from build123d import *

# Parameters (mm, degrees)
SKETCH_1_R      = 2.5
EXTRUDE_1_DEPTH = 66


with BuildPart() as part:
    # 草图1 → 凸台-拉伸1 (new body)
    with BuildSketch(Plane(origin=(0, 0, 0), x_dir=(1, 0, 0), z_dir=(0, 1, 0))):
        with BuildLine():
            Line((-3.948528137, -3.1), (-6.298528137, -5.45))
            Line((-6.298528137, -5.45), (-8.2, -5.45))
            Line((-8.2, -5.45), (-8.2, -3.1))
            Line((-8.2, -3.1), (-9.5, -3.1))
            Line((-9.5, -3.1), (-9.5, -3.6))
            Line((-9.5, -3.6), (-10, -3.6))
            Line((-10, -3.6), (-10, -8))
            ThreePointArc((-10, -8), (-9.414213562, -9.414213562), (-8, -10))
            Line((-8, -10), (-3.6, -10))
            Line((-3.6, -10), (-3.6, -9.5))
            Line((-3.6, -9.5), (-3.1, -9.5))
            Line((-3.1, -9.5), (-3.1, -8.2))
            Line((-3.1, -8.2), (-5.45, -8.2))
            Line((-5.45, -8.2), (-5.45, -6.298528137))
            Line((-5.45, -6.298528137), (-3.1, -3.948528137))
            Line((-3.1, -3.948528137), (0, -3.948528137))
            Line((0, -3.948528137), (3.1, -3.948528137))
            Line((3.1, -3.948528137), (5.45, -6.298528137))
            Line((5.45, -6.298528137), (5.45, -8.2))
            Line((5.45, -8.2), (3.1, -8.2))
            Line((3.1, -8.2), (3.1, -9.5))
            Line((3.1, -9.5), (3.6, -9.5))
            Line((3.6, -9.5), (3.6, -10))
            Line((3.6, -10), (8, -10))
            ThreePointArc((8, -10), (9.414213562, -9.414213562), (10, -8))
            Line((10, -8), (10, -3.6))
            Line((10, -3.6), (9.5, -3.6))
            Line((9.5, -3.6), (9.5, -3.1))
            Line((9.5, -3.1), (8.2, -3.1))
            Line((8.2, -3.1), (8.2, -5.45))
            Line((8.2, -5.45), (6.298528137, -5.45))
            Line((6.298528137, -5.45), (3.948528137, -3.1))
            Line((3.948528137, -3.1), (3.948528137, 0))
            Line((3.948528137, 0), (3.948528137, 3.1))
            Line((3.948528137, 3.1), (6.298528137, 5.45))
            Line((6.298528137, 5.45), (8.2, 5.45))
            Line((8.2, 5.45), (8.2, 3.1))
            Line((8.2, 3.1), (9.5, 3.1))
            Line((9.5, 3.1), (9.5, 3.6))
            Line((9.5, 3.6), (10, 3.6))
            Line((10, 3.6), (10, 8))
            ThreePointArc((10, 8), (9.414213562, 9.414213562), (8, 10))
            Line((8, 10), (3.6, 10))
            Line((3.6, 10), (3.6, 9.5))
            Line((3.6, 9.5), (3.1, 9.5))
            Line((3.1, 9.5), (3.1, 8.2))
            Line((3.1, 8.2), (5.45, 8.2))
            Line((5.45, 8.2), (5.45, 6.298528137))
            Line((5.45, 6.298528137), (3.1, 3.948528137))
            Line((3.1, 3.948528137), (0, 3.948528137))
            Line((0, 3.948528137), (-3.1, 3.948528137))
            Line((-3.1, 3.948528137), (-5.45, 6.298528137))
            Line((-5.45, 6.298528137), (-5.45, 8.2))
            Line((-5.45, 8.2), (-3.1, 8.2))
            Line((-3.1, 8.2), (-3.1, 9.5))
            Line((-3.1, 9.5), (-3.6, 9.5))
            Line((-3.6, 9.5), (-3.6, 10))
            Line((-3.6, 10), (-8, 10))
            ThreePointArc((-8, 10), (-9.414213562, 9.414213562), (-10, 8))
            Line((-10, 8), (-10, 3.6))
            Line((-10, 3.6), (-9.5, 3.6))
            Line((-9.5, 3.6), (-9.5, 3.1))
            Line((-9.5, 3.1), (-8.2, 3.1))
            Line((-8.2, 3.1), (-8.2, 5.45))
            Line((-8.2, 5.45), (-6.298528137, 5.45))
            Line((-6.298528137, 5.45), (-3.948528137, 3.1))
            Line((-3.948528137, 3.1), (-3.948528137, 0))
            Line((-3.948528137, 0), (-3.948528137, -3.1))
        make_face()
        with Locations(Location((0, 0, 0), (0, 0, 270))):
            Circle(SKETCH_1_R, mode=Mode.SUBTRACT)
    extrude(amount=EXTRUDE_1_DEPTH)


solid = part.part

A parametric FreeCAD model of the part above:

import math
import FreeCAD as App
import Part
import Sketcher

doc = App.newDocument("Part")
body = doc.addObject("PartDesign::Body", "Body")

sketch1 = doc.addObject("Sketcher::SketchObject", "Sketch")
body.addObject(sketch1)
sketch1.AttachmentSupport = (doc.XZ_Plane, [""])
sketch1.MapMode = "FlatFace"
sketch1.addGeometry(Part.LineSegment(App.Vector(-3.948528, 3.1, 0), App.Vector(-6.298528, 5.45, 0)), False)
sketch1.addGeometry(Part.LineSegment(App.Vector(-6.298528, 5.45, 0), App.Vector(-8.2, 5.45, 0)), False)
sketch1.addGeometry(Part.LineSegment(App.Vector(-8.2, 5.45, 0), App.Vector(-8.2, 3.1, 0)), False)
sketch1.addGeometry(Part.LineSegment(App.Vector(-8.2, 3.1, 0), App.Vector(-9.5, 3.1, 0)), False)
sketch1.addGeometry(Part.LineSegment(App.Vector(-9.5, 3.1, 0), App.Vector(-9.5, 3.6, 0)), False)
sketch1.addGeometry(Part.LineSegment(App.Vector(-9.5, 3.6, 0), App.Vector(-10, 3.6, 0)), False)
sketch1.addGeometry(Part.LineSegment(App.Vector(-10, 3.6, 0), App.Vector(-10, 8, 0)), False)
sketch1.addGeometry(Part.ArcOfCircle(Part.Circle(App.Vector(-8, 8, 0), App.Vector(0, 0, 1), 2), math.radians(90), math.radians(180)), False)
sketch1.addGeometry(Part.LineSegment(App.Vector(-8, 10, 0), App.Vector(-3.6, 10, 0)), False)
sketch1.addGeometry(Part.LineSegment(App.Vector(-3.6, 10, 0), App.Vector(-3.6, 9.5, 0)), False)
sketch1.addGeometry(Part.LineSegment(App.Vector(-3.6, 9.5, 0), App.Vector(-3.1, 9.5, 0)), False)
sketch1.addGeometry(Part.LineSegment(App.Vector(-3.1, 9.5, 0), App.Vector(-3.1, 8.2, 0)), False)
sketch1.addGeometry(Part.LineSegment(App.Vector(-3.1, 8.2, 0), App.Vector(-5.45, 8.2, 0)), False)
sketch1.addGeometry(Part.LineSegment(App.Vector(-5.45, 8.2, 0), App.Vector(-5.45, 6.298528, 0)), False)
sketch1.addGeometry(Part.LineSegment(App.Vector(-5.45, 6.298528, 0), App.Vector(-3.1, 3.948528, 0)), False)
sketch1.addGeometry(Part.LineSegment(App.Vector(-3.1, 3.948528, 0), App.Vector(3.1, 3.948528, 0)), False)
sketch1.addGeometry(Part.LineSegment(App.Vector(3.1, 3.948528, 0), App.Vector(5.45, 6.298528, 0)), False)
sketch1.addGeometry(Part.LineSegment(App.Vector(5.45, 6.298528, 0), App.Vector(5.45, 8.2, 0)), False)
sketch1.addGeometry(Part.LineSegment(App.Vector(5.45, 8.2, 0), App.Vector(3.1, 8.2, 0)), False)
sketch1.addGeometry(Part.LineSegment(App.Vector(3.1, 8.2, 0), App.Vector(3.1, 9.5, 0)), False)
sketch1.addGeometry(Part.LineSegment(App.Vector(3.1, 9.5, 0), App.Vector(3.6, 9.5, 0)), False)
sketch1.addGeometry(Part.LineSegment(App.Vector(3.6, 9.5, 0), App.Vector(3.6, 10, 0)), False)
sketch1.addGeometry(Part.LineSegment(App.Vector(3.6, 10, 0), App.Vector(8, 10, 0)), False)
sketch1.addGeometry(Part.ArcOfCircle(Part.Circle(App.Vector(8, 8, 0), App.Vector(0, 0, 1), 2), math.radians(0), math.radians(90)), False)
sketch1.addGeometry(Part.LineSegment(App.Vector(10, 8, 0), App.Vector(10, 3.6, 0)), False)
sketch1.addGeometry(Part.LineSegment(App.Vector(10, 3.6, 0), App.Vector(9.5, 3.6, 0)), False)
sketch1.addGeometry(Part.LineSegment(App.Vector(9.5, 3.6, 0), App.Vector(9.5, 3.1, 0)), False)
sketch1.addGeometry(Part.LineSegment(App.Vector(9.5, 3.1, 0), App.Vector(8.2, 3.1, 0)), False)
sketch1.addGeometry(Part.LineSegment(App.Vector(8.2, 3.1, 0), App.Vector(8.2, 5.45, 0)), False)
sketch1.addGeometry(Part.LineSegment(App.Vector(8.2, 5.45, 0), App.Vector(6.298528, 5.45, 0)), False)
sketch1.addGeometry(Part.LineSegment(App.Vector(6.298528, 5.45, 0), App.Vector(3.948528, 3.1, 0)), False)
sketch1.addGeometry(Part.LineSegment(App.Vector(3.948528, 3.1, 0), App.Vector(3.948528, -3.1, 0)), False)
sketch1.addGeometry(Part.LineSegment(App.Vector(3.948528, -3.1, 0), App.Vector(6.298528, -5.45, 0)), False)
sketch1.addGeometry(Part.LineSegment(App.Vector(6.298528, -5.45, 0), App.Vector(8.2, -5.45, 0)), False)
sketch1.addGeometry(Part.LineSegment(App.Vector(8.2, -5.45, 0), App.Vector(8.2, -3.1, 0)), False)
sketch1.addGeometry(Part.LineSegment(App.Vector(8.2, -3.1, 0), App.Vector(9.5, -3.1, 0)), False)
sketch1.addGeometry(Part.LineSegment(App.Vector(9.5, -3.1, 0), App.Vector(9.5, -3.6, 0)), False)
sketch1.addGeometry(Part.LineSegment(App.Vector(9.5, -3.6, 0), App.Vector(10, -3.6, 0)), False)
sketch1.addGeometry(Part.LineSegment(App.Vector(10, -3.6, 0), App.Vector(10, -8, 0)), False)
sketch1.addGeometry(Part.ArcOfCircle(Part.Circle(App.Vector(8, -8, 0), App.Vector(0, 0, 1), 2), math.radians(-90), math.radians(0)), False)
sketch1.addGeometry(Part.LineSegment(App.Vector(8, -10, 0), App.Vector(3.6, -10, 0)), False)
sketch1.addGeometry(Part.LineSegment(App.Vector(3.6, -10, 0), App.Vector(3.6, -9.5, 0)), False)
sketch1.addGeometry(Part.LineSegment(App.Vector(3.6, -9.5, 0), App.Vector(3.1, -9.5, 0)), False)
sketch1.addGeometry(Part.LineSegment(App.Vector(3.1, -9.5, 0), App.Vector(3.1, -8.2, 0)), False)
sketch1.addGeometry(Part.LineSegment(App.Vector(3.1, -8.2, 0), App.Vector(5.45, -8.2, 0)), False)
sketch1.addGeometry(Part.LineSegment(App.Vector(5.45, -8.2, 0), App.Vector(5.45, -6.298528, 0)), False)
sketch1.addGeometry(Part.LineSegment(App.Vector(5.45, -6.298528, 0), App.Vector(3.1, -3.948528, 0)), False)
sketch1.addGeometry(Part.LineSegment(App.Vector(3.1, -3.948528, 0), App.Vector(-3.1, -3.948528, 0)), False)
sketch1.addGeometry(Part.LineSegment(App.Vector(-3.1, -3.948528, 0), App.Vector(-5.45, -6.298528, 0)), False)
sketch1.addGeometry(Part.LineSegment(App.Vector(-5.45, -6.298528, 0), App.Vector(-5.45, -8.2, 0)), False)
sketch1.addGeometry(Part.LineSegment(App.Vector(-5.45, -8.2, 0), App.Vector(-3.1, -8.2, 0)), False)
sketch1.addGeometry(Part.LineSegment(App.Vector(-3.1, -8.2, 0), App.Vector(-3.1, -9.5, 0)), False)
sketch1.addGeometry(Part.LineSegment(App.Vector(-3.1, -9.5, 0), App.Vector(-3.6, -9.5, 0)), False)
sketch1.addGeometry(Part.LineSegment(App.Vector(-3.6, -9.5, 0), App.Vector(-3.6, -10, 0)), False)
sketch1.addGeometry(Part.LineSegment(App.Vector(-3.6, -10, 0), App.Vector(-8, -10, 0)), False)
sketch1.addGeometry(Part.ArcOfCircle(Part.Circle(App.Vector(-8, -8, 0), App.Vector(0, 0, 1), 2), math.radians(-180), math.radians(-90)), False)
sketch1.addGeometry(Part.LineSegment(App.Vector(-10, -8, 0), App.Vector(-10, -3.6, 0)), False)
sketch1.addGeometry(Part.LineSegment(App.Vector(-10, -3.6, 0), App.Vector(-9.5, -3.6, 0)), False)
sketch1.addGeometry(Part.LineSegment(App.Vector(-9.5, -3.6, 0), App.Vector(-9.5, -3.1, 0)), False)
sketch1.addGeometry(Part.LineSegment(App.Vector(-9.5, -3.1, 0), App.Vector(-8.2, -3.1, 0)), False)
sketch1.addGeometry(Part.LineSegment(App.Vector(-8.2, -3.1, 0), App.Vector(-8.2, -5.45, 0)), False)
sketch1.addGeometry(Part.LineSegment(App.Vector(-8.2, -5.45, 0), App.Vector(-6.298528, -5.45, 0)), False)
sketch1.addGeometry(Part.LineSegment(App.Vector(-6.298528, -5.45, 0), App.Vector(-3.948528, -3.1, 0)), False)
sketch1.addGeometry(Part.LineSegment(App.Vector(-3.948528, -3.1, 0), App.Vector(-3.948528, 3.1, 0)), False)
sketch1.addGeometry(Part.Circle(App.Vector(0, 0, 0), App.Vector(0, 0, 1), 2.5), False)
sketch1.addConstraint(Sketcher.Constraint("Coincident", 0, 2, 1, 1))
sketch1.addConstraint(Sketcher.Constraint("Coincident", 1, 2, 2, 1))
sketch1.addConstraint(Sketcher.Constraint("Coincident", 2, 2, 3, 1))
sketch1.addConstraint(Sketcher.Constraint("Coincident", 3, 2, 4, 1))
sketch1.addConstraint(Sketcher.Constraint("Coincident", 4, 2, 5, 1))
sketch1.addConstraint(Sketcher.Constraint("Coincident", 5, 2, 6, 1))
sketch1.addConstraint(Sketcher.Constraint("Tangent", 6, 2, 7, 2))
sketch1.addConstraint(Sketcher.Constraint("Tangent", 7, 1, 8, 1))
sketch1.addConstraint(Sketcher.Constraint("Coincident", 8, 2, 9, 1))
sketch1.addConstraint(Sketcher.Constraint("Coincident", 9, 2, 10, 1))
sketch1.addConstraint(Sketcher.Constraint("Coincident", 10, 2, 11, 1))
sketch1.addConstraint(Sketcher.Constraint("Coincident", 11, 2, 12, 1))
sketch1.addConstraint(Sketcher.Constraint("Coincident", 12, 2, 13, 1))
sketch1.addConstraint(Sketcher.Constraint("Coincident", 13, 2, 14, 1))
sketch1.addConstraint(Sketcher.Constraint("Coincident", 14, 2, 15, 1))
sketch1.addConstraint(Sketcher.Constraint("Coincident", 15, 2, 16, 1))
sketch1.addConstraint(Sketcher.Constraint("Coincident", 16, 2, 17, 1))
sketch1.addConstraint(Sketcher.Constraint("Coincident", 17, 2, 18, 1))
sketch1.addConstraint(Sketcher.Constraint("Coincident", 18, 2, 19, 1))
sketch1.addConstraint(Sketcher.Constraint("Coincident", 19, 2, 20, 1))
sketch1.addConstraint(Sketcher.Constraint("Coincident", 20, 2, 21, 1))
sketch1.addConstraint(Sketcher.Constraint("Coincident", 21, 2, 22, 1))
sketch1.addConstraint(Sketcher.Constraint("Tangent", 22, 2, 23, 2))
sketch1.addConstraint(Sketcher.Constraint("Tangent", 23, 1, 24, 1))
sketch1.addConstraint(Sketcher.Constraint("Coincident", 24, 2, 25, 1))
sketch1.addConstraint(Sketcher.Constraint("Coincident", 25, 2, 26, 1))
sketch1.addConstraint(Sketcher.Constraint("Coincident", 26, 2, 27, 1))
sketch1.addConstraint(Sketcher.Constraint("Coincident", 27, 2, 28, 1))
sketch1.addConstraint(Sketcher.Constraint("Coincident", 28, 2, 29, 1))
sketch1.addConstraint(Sketcher.Constraint("Coincident", 29, 2, 30, 1))
sketch1.addConstraint(Sketcher.Constraint("Coincident", 30, 2, 31, 1))
sketch1.addConstraint(Sketcher.Constraint("Coincident", 31, 2, 32, 1))
sketch1.addConstraint(Sketcher.Constraint("Coincident", 32, 2, 33, 1))
sketch1.addConstraint(Sketcher.Constraint("Coincident", 33, 2, 34, 1))
sketch1.addConstraint(Sketcher.Constraint("Coincident", 34, 2, 35, 1))
sketch1.addConstraint(Sketcher.Constraint("Coincident", 35, 2, 36, 1))
sketch1.addConstraint(Sketcher.Constraint("Coincident", 36, 2, 37, 1))
sketch1.addConstraint(Sketcher.Constraint("Coincident", 37, 2, 38, 1))
sketch1.addConstraint(Sketcher.Constraint("Tangent", 38, 2, 39, 2))
sketch1.addConstraint(Sketcher.Constraint("Tangent", 39, 1, 40, 1))
sketch1.addConstraint(Sketcher.Constraint("Coincident", 40, 2, 41, 1))
sketch1.addConstraint(Sketcher.Constraint("Coincident", 41, 2, 42, 1))
sketch1.addConstraint(Sketcher.Constraint("Coincident", 42, 2, 43, 1))
sketch1.addConstraint(Sketcher.Constraint("Coincident", 43, 2, 44, 1))
sketch1.addConstraint(Sketcher.Constraint("Coincident", 44, 2, 45, 1))
sketch1.addConstraint(Sketcher.Constraint("Coincident", 45, 2, 46, 1))
sketch1.addConstraint(Sketcher.Constraint("Coincident", 46, 2, 47, 1))
sketch1.addConstraint(Sketcher.Constraint("Coincident", 47, 2, 48, 1))
sketch1.addConstraint(Sketcher.Constraint("Coincident", 48, 2, 49, 1))
sketch1.addConstraint(Sketcher.Constraint("Coincident", 49, 2, 50, 1))
sketch1.addConstraint(Sketcher.Constraint("Coincident", 50, 2, 51, 1))
sketch1.addConstraint(Sketcher.Constraint("Coincident", 51, 2, 52, 1))
sketch1.addConstraint(Sketcher.Constraint("Coincident", 52, 2, 53, 1))
sketch1.addConstraint(Sketcher.Constraint("Coincident", 53, 2, 54, 1))
sketch1.addConstraint(Sketcher.Constraint("Tangent", 54, 2, 55, 2))
sketch1.addConstraint(Sketcher.Constraint("Tangent", 55, 1, 56, 1))
sketch1.addConstraint(Sketcher.Constraint("Coincident", 56, 2, 57, 1))
sketch1.addConstraint(Sketcher.Constraint("Coincident", 57, 2, 58, 1))
sketch1.addConstraint(Sketcher.Constraint("Coincident", 58, 2, 59, 1))
sketch1.addConstraint(Sketcher.Constraint("Coincident", 59, 2, 60, 1))
sketch1.addConstraint(Sketcher.Constraint("Coincident", 60, 2, 61, 1))
sketch1.addConstraint(Sketcher.Constraint("Coincident", 61, 2, 62, 1))
sketch1.addConstraint(Sketcher.Constraint("Coincident", 62, 2, 63, 1))
sketch1.addConstraint(Sketcher.Constraint("Coincident", 63, 2, 0, 1))
sketch1.addConstraint(Sketcher.Constraint("Horizontal", 1))
sketch1.addConstraint(Sketcher.Constraint("Vertical", 2))
sketch1.addConstraint(Sketcher.Constraint("Horizontal", 3))
sketch1.addConstraint(Sketcher.Constraint("Vertical", 4))
sketch1.addConstraint(Sketcher.Constraint("Horizontal", 5))
sketch1.addConstraint(Sketcher.Constraint("Vertical", 6))
sketch1.addConstraint(Sketcher.Constraint("Horizontal", 8))
sketch1.addConstraint(Sketcher.Constraint("Vertical", 9))
sketch1.addConstraint(Sketcher.Constraint("Horizontal", 10))
sketch1.addConstraint(Sketcher.Constraint("Vertical", 11))
sketch1.addConstraint(Sketcher.Constraint("Horizontal", 12))
sketch1.addConstraint(Sketcher.Constraint("Vertical", 13))
sketch1.addConstraint(Sketcher.Constraint("Horizontal", 15))
sketch1.addConstraint(Sketcher.Constraint("Vertical", 17))
sketch1.addConstraint(Sketcher.Constraint("Horizontal", 18))
sketch1.addConstraint(Sketcher.Constraint("Vertical", 19))
sketch1.addConstraint(Sketcher.Constraint("Horizontal", 20))
sketch1.addConstraint(Sketcher.Constraint("Vertical", 21))
sketch1.addConstraint(Sketcher.Constraint("Horizontal", 22))
sketch1.addConstraint(Sketcher.Constraint("Vertical", 24))
sketch1.addConstraint(Sketcher.Constraint("Horizontal", 25))
sketch1.addConstraint(Sketcher.Constraint("Vertical", 26))
sketch1.addConstraint(Sketcher.Constraint("Horizontal", 27))
sketch1.addConstraint(Sketcher.Constraint("Vertical", 28))
sketch1.addConstraint(Sketcher.Constraint("Horizontal", 29))
sketch1.addConstraint(Sketcher.Constraint("Vertical", 31))
sketch1.addConstraint(Sketcher.Constraint("Horizontal", 33))
sketch1.addConstraint(Sketcher.Constraint("Vertical", 34))
sketch1.addConstraint(Sketcher.Constraint("Horizontal", 35))
sketch1.addConstraint(Sketcher.Constraint("Vertical", 36))
sketch1.addConstraint(Sketcher.Constraint("Horizontal", 37))
sketch1.addConstraint(Sketcher.Constraint("Vertical", 38))
sketch1.addConstraint(Sketcher.Constraint("Horizontal", 40))
sketch1.addConstraint(Sketcher.Constraint("Vertical", 41))
sketch1.addConstraint(Sketcher.Constraint("Horizontal", 42))
sketch1.addConstraint(Sketcher.Constraint("Vertical", 43))
sketch1.addConstraint(Sketcher.Constraint("Horizontal", 44))
sketch1.addConstraint(Sketcher.Constraint("Vertical", 45))
sketch1.addConstraint(Sketcher.Constraint("Horizontal", 47))
sketch1.addConstraint(Sketcher.Constraint("Vertical", 49))
sketch1.addConstraint(Sketcher.Constraint("Horizontal", 50))
sketch1.addConstraint(Sketcher.Constraint("Vertical", 51))
sketch1.addConstraint(Sketcher.Constraint("Horizontal", 52))
sketch1.addConstraint(Sketcher.Constraint("Vertical", 53))
sketch1.addConstraint(Sketcher.Constraint("Horizontal", 54))
sketch1.addConstraint(Sketcher.Constraint("Vertical", 56))
sketch1.addConstraint(Sketcher.Constraint("Horizontal", 57))
sketch1.addConstraint(Sketcher.Constraint("Vertical", 58))
sketch1.addConstraint(Sketcher.Constraint("Horizontal", 59))
sketch1.addConstraint(Sketcher.Constraint("Vertical", 60))
sketch1.addConstraint(Sketcher.Constraint("Horizontal", 61))
sketch1.addConstraint(Sketcher.Constraint("Vertical", 63))
sketch1.addConstraint(Sketcher.Constraint("Coincident", 64, 3, -1, 1))
sketch1.addConstraint(Sketcher.Constraint("Equal", 7, 23))
sketch1.addConstraint(Sketcher.Constraint("Equal", 23, 39))
sketch1.addConstraint(Sketcher.Constraint("Equal", 39, 55))
sketch1.addConstraint(Sketcher.Constraint("Symmetric", 7, 3, 39, 3, -1, 1))
sketch1.addConstraint(Sketcher.Constraint("Symmetric", 23, 3, 55, 3, -1, 1))
sketch1.addConstraint(Sketcher.Constraint("Symmetric", 0, 2, 32, 2, -1, 1))
sketch1.addConstraint(Sketcher.Constraint("Symmetric", 2, 2, 34, 2, -1, 1))
sketch1.addConstraint(Sketcher.Constraint("Symmetric", 4, 2, 36, 2, -1, 1))
sketch1.addConstraint(Sketcher.Constraint("Symmetric", 9, 2, 41, 2, -1, 1))
sketch1.addConstraint(Sketcher.Constraint("Symmetric", 11, 2, 43, 2, -1, 1))
sketch1.addConstraint(Sketcher.Constraint("Symmetric", 13, 2, 45, 2, -1, 1))
sketch1.addConstraint(Sketcher.Constraint("Symmetric", 14, 2, 46, 2, -1, 1))
sketch1.addConstraint(Sketcher.Constraint("Symmetric", 16, 2, 48, 2, -1, 1))
sketch1.addConstraint(Sketcher.Constraint("Symmetric", 18, 2, 50, 2, -1, 1))
sketch1.addConstraint(Sketcher.Constraint("Symmetric", 20, 2, 52, 2, -1, 1))
sketch1.addConstraint(Sketcher.Constraint("Symmetric", 25, 2, 57, 2, -1, 1))
sketch1.addConstraint(Sketcher.Constraint("Symmetric", 27, 2, 59, 2, -1, 1))
sketch1.addConstraint(Sketcher.Constraint("Symmetric", 29, 2, 61, 2, -1, 1))
sketch1.addConstraint(Sketcher.Constraint("Symmetric", 30, 2, 62, 2, -1, 1))
sketch1.addConstraint(Sketcher.Constraint("Symmetric", 7, 3, 23, 3, -2))
sketch1.addConstraint(Sketcher.Constraint("Symmetric", 13, 2, 16, 2, -2))
sketch1.addConstraint(Sketcher.Constraint("Symmetric", 11, 2, 18, 2, -2))
sketch1.addConstraint(Sketcher.Constraint("Symmetric", 9, 2, 20, 2, -2))
sketch1.addConstraint(Sketcher.Constraint("Symmetric", 4, 2, 25, 2, -2))
sketch1.addConstraint(Sketcher.Constraint("Symmetric", 2, 2, 27, 2, -2))
sketch1.addConstraint(Sketcher.Constraint("Symmetric", 0, 2, 29, 2, -2))
sketch1.addConstraint(Sketcher.Constraint("Parallel", 0, 14))
sketch1.addConstraint(Sketcher.Constraint("Perpendicular", 14, 16))
sketch1.addConstraint(Sketcher.Constraint("Parallel", 16, 30))
sketch1.addConstraint(Sketcher.Constraint("Perpendicular", 30, 32))
sketch1.addConstraint(Sketcher.Constraint("Perpendicular", 46, 48))
sketch1.addConstraint(Sketcher.Constraint("Horizontal", 27, 2, 30, 2))
sketch1.addConstraint(Sketcher.Constraint("Horizontal", 31, 2, 34, 2))
sketch1.addConstraint(Sketcher.Constraint("Vertical", 11, 2, 14, 2))
sketch1.addConstraint(Sketcher.Constraint("Equal", 5, 10))
sketch1.addConstraint(Sketcher.Constraint("Equal", 50, 2))
sketch1.addConstraint(Sketcher.Constraint("Equal", 57, 4))
sketch1.addConstraint(Sketcher.Constraint("Equal", 54, 6))
sketch1.addConstraint(Sketcher.Constraint("Equal", 4, 9))
sketch1.addConstraint(Sketcher.Constraint("Equal", 59, 11))
sketch1.addConstraint(Sketcher.Constraint("Equal", 61, 13))
sketch1.addConstraint(Sketcher.Constraint("Equal", 47, 31))
sketch1.addConstraint(Sketcher.Constraint("Diameter", 64, 5.0))
sketch1.addConstraint(Sketcher.Constraint("Radius", 7, 2.0))
sketch1.addConstraint(Sketcher.Constraint("DistanceX", 3, 2, 3, 1, 1.3))
sketch1.addConstraint(Sketcher.Constraint("DistanceX", 5, 2, 5, 1, 0.5))
sketch1.addConstraint(Sketcher.Constraint("DistanceX", 8, 1, 8, 2, 4.4))
sketch1.addConstraint(Sketcher.Constraint("DistanceX", 15, 1, 15, 2, 6.2))
sketch1.addConstraint(Sketcher.Constraint("DistanceX", 12, 2, 12, 1, 2.35))
sketch1.addConstraint(Sketcher.Constraint("DistanceX", 1, 2, 1, 1, 1.901472))
pad1 = doc.addObject("PartDesign::Pad", "Pad")
body.addObject(pad1)
pad1.Profile = sketch1
pad1.Length = 66
pad1.Reversed = True

doc.recompute()
